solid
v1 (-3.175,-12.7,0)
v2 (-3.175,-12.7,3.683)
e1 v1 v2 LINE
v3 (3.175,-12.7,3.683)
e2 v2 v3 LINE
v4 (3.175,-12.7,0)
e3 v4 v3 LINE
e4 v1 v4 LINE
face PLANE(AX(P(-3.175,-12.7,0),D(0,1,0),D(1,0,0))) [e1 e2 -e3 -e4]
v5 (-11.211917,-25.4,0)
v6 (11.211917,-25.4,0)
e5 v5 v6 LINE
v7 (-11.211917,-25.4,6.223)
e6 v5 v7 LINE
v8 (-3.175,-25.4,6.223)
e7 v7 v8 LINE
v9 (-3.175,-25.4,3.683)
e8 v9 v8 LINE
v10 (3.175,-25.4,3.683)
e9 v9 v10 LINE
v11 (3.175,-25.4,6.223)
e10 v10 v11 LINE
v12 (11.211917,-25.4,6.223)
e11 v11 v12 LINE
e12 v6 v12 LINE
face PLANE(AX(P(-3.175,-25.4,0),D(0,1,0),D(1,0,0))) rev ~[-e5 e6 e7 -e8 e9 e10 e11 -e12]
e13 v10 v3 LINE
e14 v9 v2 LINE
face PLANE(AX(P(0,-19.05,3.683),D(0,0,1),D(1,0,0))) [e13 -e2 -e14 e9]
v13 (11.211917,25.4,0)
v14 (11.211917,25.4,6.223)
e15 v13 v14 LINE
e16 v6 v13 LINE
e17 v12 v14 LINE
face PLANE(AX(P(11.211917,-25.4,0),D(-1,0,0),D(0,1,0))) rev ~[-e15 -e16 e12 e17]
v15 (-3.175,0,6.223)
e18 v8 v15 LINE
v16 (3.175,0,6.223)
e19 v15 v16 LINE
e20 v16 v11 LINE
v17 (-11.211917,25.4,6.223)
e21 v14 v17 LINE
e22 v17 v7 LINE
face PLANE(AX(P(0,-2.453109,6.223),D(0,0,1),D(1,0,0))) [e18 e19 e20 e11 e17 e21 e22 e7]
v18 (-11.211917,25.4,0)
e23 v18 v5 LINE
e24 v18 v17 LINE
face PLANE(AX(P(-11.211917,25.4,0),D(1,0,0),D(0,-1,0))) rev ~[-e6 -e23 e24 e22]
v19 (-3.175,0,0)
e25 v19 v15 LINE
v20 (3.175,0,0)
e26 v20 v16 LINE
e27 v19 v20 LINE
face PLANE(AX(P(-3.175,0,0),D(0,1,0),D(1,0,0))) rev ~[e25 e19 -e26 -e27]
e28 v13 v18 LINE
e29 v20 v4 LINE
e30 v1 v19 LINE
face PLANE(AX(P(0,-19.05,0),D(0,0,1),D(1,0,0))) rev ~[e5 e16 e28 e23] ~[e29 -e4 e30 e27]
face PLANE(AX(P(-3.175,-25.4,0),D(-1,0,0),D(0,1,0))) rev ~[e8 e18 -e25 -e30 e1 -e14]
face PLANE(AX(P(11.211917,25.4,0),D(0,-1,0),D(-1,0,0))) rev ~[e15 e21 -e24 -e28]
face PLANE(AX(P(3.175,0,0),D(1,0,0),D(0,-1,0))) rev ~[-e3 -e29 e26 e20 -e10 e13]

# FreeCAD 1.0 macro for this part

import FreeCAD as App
import Part
import Sketcher
Q = App.Units.Quantity

doc = App.newDocument("Part")
body = doc.addObject("PartDesign::Body", "Body")

sketch1 = body.newObject("Sketcher::SketchObject", "Sketch")
sketch1.AttachmentSupport = (doc.getObject("XY_Plane"), [""])
sketch1.MapMode = "FlatFace"
sketch1.addGeometry([
    Part.LineSegment(App.Vector(3, -25, 0), App.Vector(11, -25, 0)),
    Part.LineSegment(App.Vector(11, -25, 0), App.Vector(11, 25, 0)),
    Part.LineSegment(App.Vector(11, 25, 0), App.Vector(-11, 25, 0)),
    Part.LineSegment(App.Vector(-11, 25, 0), App.Vector(-11, -25, 0)),
    Part.LineSegment(App.Vector(-11, -25, 0), App.Vector(-3, -25, 0)),
    Part.LineSegment(App.Vector(-3, -25, 0), App.Vector(-3, 0, 0)),
    Part.LineSegment(App.Vector(-3, 0, 0), App.Vector(3, 0, 0)),
    Part.LineSegment(App.Vector(3, 0, 0), App.Vector(3, -25, 0)),
], False)
sketch1.addConstraint([
    Sketcher.Constraint("Coincident", 0, 2, 1, 1),
    Sketcher.Constraint("Coincident", 1, 2, 2, 1),
    Sketcher.Constraint("Coincident", 2, 2, 3, 1),
    Sketcher.Constraint("Coincident", 3, 2, 4, 1),
    Sketcher.Constraint("Coincident", 4, 2, 5, 1),
    Sketcher.Constraint("Coincident", 5, 2, 6, 1),
    Sketcher.Constraint("Coincident", 6, 2, 7, 1),
    Sketcher.Constraint("Coincident", 7, 2, 0, 1),
    Sketcher.Constraint("Horizontal", 0),
    Sketcher.Constraint("Vertical", 1),
    Sketcher.Constraint("Horizontal", 2),
    Sketcher.Constraint("Vertical", 3),
    Sketcher.Constraint("Horizontal", 4),
    Sketcher.Constraint("Vertical", 5),
    Sketcher.Constraint("Horizontal", 6),
    Sketcher.Constraint("Vertical", 7),
    Sketcher.Constraint("Symmetric", 0, 2, 2, 2, -1, 1),
    Sketcher.Constraint("Symmetric", 5, 2, 6, 2, -1, 1),
    Sketcher.Constraint("Horizontal", 0, 2, 3, 2),
    Sketcher.Constraint("DistanceY", 1, 1, 1, 2, Q("2 in")),
    Sketcher.Constraint("DistanceX", 6, 1, 6, 2, Q("0.25 in")),
    Sketcher.Constraint("DistanceX", 0, 1, 0, 2, Q("8.036917 mm")),
])
pad1 = body.newObject("PartDesign::Pad", "Pad")
pad1.Profile = sketch1
pad1.Length = Q("0.245 in")

sketch2 = body.newObject("Sketcher::SketchObject", "Sketch001")
sketch2.AttachmentSupport = (doc.getObject("XY_Plane"), [""])
sketch2.MapMode = "FlatFace"
sketch2.addGeometry([
    Part.LineSegment(App.Vector(-3, -13, 0), App.Vector(-3, -25, 0)),
    Part.LineSegment(App.Vector(-3, -25, 0), App.Vector(3, -25, 0)),
    Part.LineSegment(App.Vector(3, -25, 0), App.Vector(3, -13, 0)),
    Part.LineSegment(App.Vector(3, -13, 0), App.Vector(-3, -13, 0)),
], False)
sketch2.addConstraint([
    Sketcher.Constraint("Coincident", 0, 2, 1, 1),
    Sketcher.Constraint("Coincident", 1, 2, 2, 1),
    Sketcher.Constraint("Coincident", 2, 2, 3, 1),
    Sketcher.Constraint("Coincident", 3, 2, 0, 1),
    Sketcher.Constraint("Vertical", 0),
    Sketcher.Constraint("Horizontal", 1),
    Sketcher.Constraint("Vertical", 2),
    Sketcher.Constraint("Horizontal", 3),
    Sketcher.Constraint("DistanceY", 0, 2, 0, 1, Q("0.5 in")),
    Sketcher.Constraint("DistanceY", 0, 2, -1, 1, Q("1 in")),
    Sketcher.Constraint("DistanceX", 1, 1, 1, 2, Q("0.25 in")),
    Sketcher.Constraint("DistanceX", 0, 2, -1, 1, Q("0.125 in")),
])
pad2 = body.newObject("PartDesign::Pad", "Pad001")
pad2.Profile = sketch2
pad2.Length = Q("0.145 in")

doc.recompute()
